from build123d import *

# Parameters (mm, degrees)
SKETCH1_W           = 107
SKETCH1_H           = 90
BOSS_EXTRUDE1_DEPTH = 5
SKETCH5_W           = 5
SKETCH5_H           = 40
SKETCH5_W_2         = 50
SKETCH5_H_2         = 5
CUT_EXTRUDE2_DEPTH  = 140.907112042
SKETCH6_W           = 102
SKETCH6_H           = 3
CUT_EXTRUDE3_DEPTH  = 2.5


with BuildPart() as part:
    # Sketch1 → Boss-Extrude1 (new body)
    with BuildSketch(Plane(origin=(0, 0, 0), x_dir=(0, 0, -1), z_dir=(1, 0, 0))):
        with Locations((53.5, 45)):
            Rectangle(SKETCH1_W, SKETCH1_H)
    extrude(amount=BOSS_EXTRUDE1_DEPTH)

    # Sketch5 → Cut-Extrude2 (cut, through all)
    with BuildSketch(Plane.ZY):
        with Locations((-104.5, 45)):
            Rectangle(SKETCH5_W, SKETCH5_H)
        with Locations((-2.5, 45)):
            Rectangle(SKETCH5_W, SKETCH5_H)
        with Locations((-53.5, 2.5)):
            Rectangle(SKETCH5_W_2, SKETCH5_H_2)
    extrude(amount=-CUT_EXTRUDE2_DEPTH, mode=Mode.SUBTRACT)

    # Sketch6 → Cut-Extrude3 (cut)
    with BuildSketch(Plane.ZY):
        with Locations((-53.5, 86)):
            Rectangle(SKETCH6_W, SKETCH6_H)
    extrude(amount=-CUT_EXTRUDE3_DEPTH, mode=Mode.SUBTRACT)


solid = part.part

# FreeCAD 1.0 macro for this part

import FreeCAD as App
import Part
import Sketcher
from FreeCAD import Vector

doc = App.newDocument("Part")
params = doc.addObject("Spreadsheet::Sheet", "Params")
for row, (alias, value) in enumerate([
    ("sketch1_width", "90 mm"),
    ("sketch1_height", "107 mm"),
    ("pad1_length", "5 mm"),
    ("sketch2_width", "40 mm"),
    ("sketch2_width2", "5 mm"),
    ("sketch2_height", "50 mm"),
    ("sketch3_width", "3 mm"),
    ("sketch3_height", "102 mm"),
    ("pocket2_length", "2.5 mm"),
], start=1):
    params.set(f"A{row}", alias)
    params.set(f"B{row}", "=" + value)
    params.setAlias(f"B{row}", alias)

body = doc.addObject("PartDesign::Body", "Body")

# Sketch on YZ plane
sketch1 = body.newObject("Sketcher::SketchObject", "Sketch")
sketch1.AttachmentSupport = (doc.getObject("YZ_Plane"), [""])
sketch1.MapMode = "FlatFace"
sketch1.addGeometry([
    Part.LineSegment(Vector(90, 0, 0), Vector(0, 0, 0)),
    Part.LineSegment(Vector(0, 0, 0), Vector(0, -107, 0)),
    Part.LineSegment(Vector(0, -107, 0), Vector(90, -107, 0)),
    Part.LineSegment(Vector(90, -107, 0), Vector(90, 0, 0)),
], False)
sketch1.addConstraint([
    Sketcher.Constraint("Coincident", 0, 2, 1, 1),
    Sketcher.Constraint("Coincident", 1, 2, 2, 1),
    Sketcher.Constraint("Coincident", 2, 2, 3, 1),
    Sketcher.Constraint("Coincident", 3, 2, 0, 1),
    Sketcher.Constraint("Horizontal", 0),
    Sketcher.Constraint("Vertical", 1),
    Sketcher.Constraint("Horizontal", 2),
    Sketcher.Constraint("Vertical", 3),
    Sketcher.Constraint("Coincident", 0, 2, -1, 1),
    Sketcher.Constraint("DistanceX", 0, 2, 0, 1, 90.0),
    Sketcher.Constraint("DistanceY", 1, 2, 1, 1, 107.0),
])
sketch1.setExpression("Constraints[9]", "Params.sketch1_width")
sketch1.setExpression("Constraints[10]", "Params.sketch1_height")
pad1 = body.newObject("PartDesign::Pad", "Pad")
pad1.Profile = sketch1
pad1.setExpression("Length", "Params.pad1_length")

# Sketch on YZ plane
sketch2 = body.newObject("Sketcher::SketchObject", "Sketch001")
sketch2.AttachmentSupport = (doc.getObject("YZ_Plane"), [""])
sketch2.MapMode = "FlatFace"
sketch2.addGeometry([
    Part.LineSegment(Vector(65, -107, 0), Vector(25, -107, 0)),  # 0
    Part.LineSegment(Vector(25, -107, 0), Vector(25, -102, 0)),  # 1
    Part.LineSegment(Vector(25, -102, 0), Vector(65, -102, 0)),  # 2
    Part.LineSegment(Vector(65, -102, 0), Vector(65, -107, 0)),  # 3
    Part.LineSegment(Vector(65, -5, 0), Vector(25, -5, 0)),  # 4
    Part.LineSegment(Vector(25, -5, 0), Vector(25, 0, 0)),  # 5
    Part.LineSegment(Vector(25, 0, 0), Vector(65, 0, 0)),  # 6
    Part.LineSegment(Vector(65, 0, 0), Vector(65, -5, 0)),  # 7
    Part.LineSegment(Vector(5, -78, 0), Vector(0, -78, 0)),  # 8
    Part.LineSegment(Vector(0, -78, 0), Vector(0, -28, 0)),  # 9
    Part.LineSegment(Vector(0, -28, 0), Vector(5, -28, 0)),  # 10
    Part.LineSegment(Vector(5, -28, 0), Vector(5, -78, 0)),  # 11
], False)
sketch2.addConstraint([
    Sketcher.Constraint("Coincident", 0, 2, 1, 1),
    Sketcher.Constraint("Coincident", 1, 2, 2, 1),
    Sketcher.Constraint("Coincident", 2, 2, 3, 1),
    Sketcher.Constraint("Coincident", 3, 2, 0, 1),
    Sketcher.Constraint("Coincident", 4, 2, 5, 1),
    Sketcher.Constraint("Coincident", 5, 2, 6, 1),
    Sketcher.Constraint("Coincident", 6, 2, 7, 1),
    Sketcher.Constraint("Coincident", 7, 2, 4, 1),
    Sketcher.Constraint("Coincident", 8, 2, 9, 1),
    Sketcher.Constraint("Coincident", 9, 2, 10, 1),
    Sketcher.Constraint("Coincident", 10, 2, 11, 1),
    Sketcher.Constraint("Coincident", 11, 2, 8, 1),
    Sketcher.Constraint("Horizontal", 0),
    Sketcher.Constraint("Vertical", 1),
    Sketcher.Constraint("Horizontal", 2),
    Sketcher.Constraint("Vertical", 3),
    Sketcher.Constraint("Horizontal", 4),
    Sketcher.Constraint("Vertical", 5),
    Sketcher.Constraint("Horizontal", 6),
    Sketcher.Constraint("Vertical", 7),
    Sketcher.Constraint("Horizontal", 8),
    Sketcher.Constraint("Vertical", 9),
    Sketcher.Constraint("Horizontal", 10),
    Sketcher.Constraint("Vertical", 11),
    Sketcher.Constraint("PointOnObject", 5, 2, -1),
    Sketcher.Constraint("PointOnObject", 8, 2, -2),
    Sketcher.Constraint("Vertical", 1, 2, 4, 2),
    Sketcher.Constraint("Vertical", 3, 2, 6, 2),
    Sketcher.Constraint("Equal", 10, 1),
    Sketcher.Constraint("Equal", 3, 5),
    Sketcher.Constraint("DistanceX", 0, 2, 0, 1, 40.0),
    Sketcher.Constraint("DistanceX", 8, 2, 8, 1, 5.0),
    Sketcher.Constraint("DistanceY", 9, 1, 9, 2, 50.0),
    Sketcher.Constraint("DistanceX", -1, 1, 0, 2, 25.0),
    Sketcher.Constraint("DistanceY", 0, 2, -1, 1, 107.0),
    Sketcher.Constraint("DistanceY", 8, 2, -1, 1, 78.5),
])
sketch2.setExpression("Constraints[30]", "Params.sketch2_width")
sketch2.setExpression("Constraints[31]", "Params.sketch2_width2")
sketch2.setExpression("Constraints[32]", "Params.sketch2_height")
pocket1 = body.newObject("PartDesign::Pocket", "Pocket")
pocket1.Profile = sketch2
pocket1.Type = "ThroughAll"
pocket1.Reversed = True

# Sketch on YZ plane
sketch3 = body.newObject("Sketcher::SketchObject", "Sketch002")
sketch3.AttachmentSupport = (doc.getObject("YZ_Plane"), [""])
sketch3.MapMode = "FlatFace"
sketch3.addGeometry([
    Part.LineSegment(Vector(87.5, -104.5, 0), Vector(84.5, -104.5, 0)),
    Part.LineSegment(Vector(84.5, -104.5, 0), Vector(84.5, -2.5, 0)),
    Part.LineSegment(Vector(84.5, -2.5, 0), Vector(87.5, -2.5, 0)),
    Part.LineSegment(Vector(87.5, -2.5, 0), Vector(87.5, -104.5, 0)),
], False)
sketch3.addConstraint([
    Sketcher.Constraint("Coincident", 0, 2, 1, 1),
    Sketcher.Constraint("Coincident", 1, 2, 2, 1),
    Sketcher.Constraint("Coincident", 2, 2, 3, 1),
    Sketcher.Constraint("Coincident", 3, 2, 0, 1),
    Sketcher.Constraint("Horizontal", 0),
    Sketcher.Constraint("Vertical", 1),
    Sketcher.Constraint("Horizontal", 2),
    Sketcher.Constraint("Vertical", 3),
    Sketcher.Constraint("DistanceX", 0, 2, 0, 1, 3.0),
    Sketcher.Constraint("DistanceY", 1, 1, 1, 2, 102.0),
    Sketcher.Constraint("DistanceX", -1, 1, 0, 2, 84.5),
    Sketcher.Constraint("DistanceY", 0, 2, -1, 1, 104.5),
])
sketch3.setExpression("Constraints[8]", "Params.sketch3_width")
sketch3.setExpression("Constraints[9]", "Params.sketch3_height")
pocket2 = body.newObject("PartDesign::Pocket", "Pocket001")
pocket2.Profile = sketch3
pocket2.setExpression("Length", "Params.pocket2_length")
pocket2.Reversed = True

doc.recompute()
